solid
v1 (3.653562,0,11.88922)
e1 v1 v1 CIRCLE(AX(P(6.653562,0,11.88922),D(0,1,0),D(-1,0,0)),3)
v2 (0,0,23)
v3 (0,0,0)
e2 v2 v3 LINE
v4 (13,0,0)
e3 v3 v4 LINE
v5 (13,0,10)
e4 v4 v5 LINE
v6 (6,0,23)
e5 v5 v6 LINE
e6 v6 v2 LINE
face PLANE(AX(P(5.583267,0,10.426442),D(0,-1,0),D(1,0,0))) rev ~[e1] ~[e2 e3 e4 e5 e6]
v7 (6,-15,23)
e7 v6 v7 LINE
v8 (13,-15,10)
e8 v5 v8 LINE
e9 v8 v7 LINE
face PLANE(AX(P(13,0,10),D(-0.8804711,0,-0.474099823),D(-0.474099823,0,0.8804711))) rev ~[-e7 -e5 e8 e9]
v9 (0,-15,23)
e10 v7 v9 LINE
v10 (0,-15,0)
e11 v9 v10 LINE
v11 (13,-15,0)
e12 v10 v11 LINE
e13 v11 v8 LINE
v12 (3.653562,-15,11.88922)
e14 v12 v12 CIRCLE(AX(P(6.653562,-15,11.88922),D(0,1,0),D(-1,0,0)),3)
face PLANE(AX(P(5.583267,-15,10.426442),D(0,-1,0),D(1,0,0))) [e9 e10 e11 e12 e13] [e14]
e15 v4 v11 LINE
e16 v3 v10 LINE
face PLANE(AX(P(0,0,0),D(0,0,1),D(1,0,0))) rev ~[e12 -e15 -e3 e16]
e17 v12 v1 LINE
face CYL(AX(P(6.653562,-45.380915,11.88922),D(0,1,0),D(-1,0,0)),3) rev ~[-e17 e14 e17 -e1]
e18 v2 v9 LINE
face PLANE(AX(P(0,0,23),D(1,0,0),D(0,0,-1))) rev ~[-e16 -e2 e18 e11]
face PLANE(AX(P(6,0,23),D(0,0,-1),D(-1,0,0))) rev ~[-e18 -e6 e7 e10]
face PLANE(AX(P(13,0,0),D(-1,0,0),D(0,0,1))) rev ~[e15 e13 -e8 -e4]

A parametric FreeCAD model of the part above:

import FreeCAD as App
import Part
import Sketcher

V = App.Vector


def add_polygon(sketch, points):
    """Adds a closed chain of lines whose ends are joined by coincident constraints."""
    first, n = sketch.GeometryCount, len(points)
    for a, b in zip(points, points[1:] + points[:1]):
        sketch.addGeometry(Part.LineSegment(App.Vector(*a, 0), App.Vector(*b, 0)), False)
    for i in range(n):
        sketch.addConstraint(Sketcher.Constraint("Coincident", first + i, 2, first + (i + 1) % n, 1))

doc = App.newDocument("Part")
params = doc.addObject("Spreadsheet::Sheet", "Params")
for row, (alias, value) in enumerate([
    ("sketch1_width", "13 mm"),
    ("sketch1_width2", "6 mm"),
    ("sketch1_height", "23 mm"),
    ("sketch1_height2", "10 mm"),
    ("pad1_length", "15 mm"),
    ("sketch2_diameter", "6 mm"),
    ("hole_diameter", "6 mm"),
], start=1):
    params.set(f"A{row}", alias)
    params.set(f"B{row}", "=" + value)
    params.setAlias(f"B{row}", alias)

body = doc.addObject("PartDesign::Body", "Body")

# Sketch on XZ plane
sketch1 = body.newObject("Sketcher::SketchObject", "Sketch")
sketch1.AttachmentSupport = (doc.getObject("XZ_Plane"), [""])
sketch1.MapMode = "FlatFace"
add_polygon(sketch1, [(0, 23), (0, 0), (13, 0), (13, 10), (6, 23)])  # lines 0-4
sketch1.addConstraint(Sketcher.Constraint("Vertical", 0))
sketch1.addConstraint(Sketcher.Constraint("Horizontal", 1))
sketch1.addConstraint(Sketcher.Constraint("Vertical", 2))
sketch1.addConstraint(Sketcher.Constraint("Horizontal", 4))
sketch1.addConstraint(Sketcher.Constraint("Coincident", 0, 2, -1, 1))
sketch1.addConstraint(Sketcher.Constraint("DistanceX", 1, 1, 1, 2, 13.0))
sketch1.addConstraint(Sketcher.Constraint("DistanceX", 4, 2, 4, 1, 6.0))
sketch1.addConstraint(Sketcher.Constraint("DistanceY", 0, 2, 0, 1, 23.0))
sketch1.addConstraint(Sketcher.Constraint("DistanceY", 2, 1, 2, 2, 10.0))
sketch1.setExpression("Constraints[10]", "Params.sketch1_width")
sketch1.setExpression("Constraints[11]", "Params.sketch1_width2")
sketch1.setExpression("Constraints[12]", "Params.sketch1_height")
sketch1.setExpression("Constraints[13]", "Params.sketch1_height2")
pad1 = body.newObject("PartDesign::Pad", "Pad")
pad1.Profile = sketch1
pad1.setExpression("Length", "Params.pad1_length")

# Sketch on XZ plane
sketch2 = body.newObject("Sketcher::SketchObject", "Sketch001")
sketch2.AttachmentSupport = (doc.getObject("XZ_Plane"), [""])
sketch2.MapMode = "FlatFace"
sketch2.AttachmentOffset = App.Placement(V(0, 0, 15), App.Rotation())
sketch2.addGeometry(Part.Circle(V(6.653562, 11.88922, 0), V(0, 0, 1), 3), False)
sketch2.addConstraint(Sketcher.Constraint("Diameter", 0, 6.0))
sketch2.addConstraint(Sketcher.Constraint("DistanceY", -1, 1, 0, 3, 11.88922))
sketch2.addConstraint(Sketcher.Constraint("DistanceX", -1, 1, 0, 3, 6.653562))
sketch2.setExpression("Constraints[0]", "Params.sketch2_diameter")
doc.recompute()
hole = body.newObject("PartDesign::Hole", "Hole")
hole.Profile = sketch2
hole.ThreadType = "None"
hole.setExpression("Diameter", "Params.hole_diameter")
hole.DepthType = "ThroughAll"

doc.recompute()
